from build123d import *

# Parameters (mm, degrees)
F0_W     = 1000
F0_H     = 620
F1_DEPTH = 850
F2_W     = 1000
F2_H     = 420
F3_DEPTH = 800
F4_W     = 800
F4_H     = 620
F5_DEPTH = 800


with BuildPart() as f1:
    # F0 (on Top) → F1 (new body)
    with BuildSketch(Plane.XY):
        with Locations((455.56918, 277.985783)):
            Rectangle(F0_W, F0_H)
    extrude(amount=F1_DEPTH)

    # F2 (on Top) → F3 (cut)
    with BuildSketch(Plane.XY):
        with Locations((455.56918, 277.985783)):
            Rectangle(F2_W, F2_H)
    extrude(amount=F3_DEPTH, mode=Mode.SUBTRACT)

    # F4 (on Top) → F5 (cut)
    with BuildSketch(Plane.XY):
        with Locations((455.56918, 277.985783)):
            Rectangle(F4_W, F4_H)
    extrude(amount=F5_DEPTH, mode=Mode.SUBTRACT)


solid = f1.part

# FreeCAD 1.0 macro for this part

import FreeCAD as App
import Part
import Sketcher
Q = App.Units.Quantity


def add_polygon(sketch, points):
    """Adds a closed chain of lines whose ends are joined by coincident constraints."""
    first, n = sketch.GeometryCount, len(points)
    for a, b in zip(points, points[1:] + points[:1]):
        sketch.addGeometry(Part.LineSegment(App.Vector(*a, 0), App.Vector(*b, 0)), False)
    for i in range(n):
        sketch.addConstraint(Sketcher.Constraint("Coincident", first + i, 2, first + (i + 1) % n, 1))

doc = App.newDocument("Part")
params = doc.addObject("Spreadsheet::Sheet", "Params")
for row, (alias, value) in enumerate([
    ("sketch1_width", "1000 mm"),
    ("sketch1_height", "620 mm"),
    ("pad1_length", "850 mm"),
    ("sketch2_width", "1000 mm"),
    ("sketch2_height", "420 mm"),
    ("pocket1_length", "800 mm"),
    ("sketch3_width", "800 mm"),
    ("sketch3_height", "620 mm"),
    ("pocket2_length", "800 mm"),
], start=1):
    params.set(f"A{row}", alias)
    params.set(f"B{row}", "=" + value)
    params.setAlias(f"B{row}", alias)

body = doc.addObject("PartDesign::Body", "Body")

# Sketch on XY plane
sketch1 = body.newObject("Sketcher::SketchObject", "Sketch")
sketch1.AttachmentSupport = (doc.getObject("XY_Plane"), [""])
sketch1.MapMode = "FlatFace"
add_polygon(sketch1, [(-44, 588), (-44, -32), (956, -32), (956, 588)])  # lines 0-3
sketch1.addConstraint([
    Sketcher.Constraint("Vertical", 0),
    Sketcher.Constraint("Horizontal", 1),
    Sketcher.Constraint("Vertical", 2),
    Sketcher.Constraint("Horizontal", 3),
    Sketcher.Constraint("DistanceX", 1, 1, 1, 2, Q("1000 mm")),
    Sketcher.Constraint("DistanceY", 0, 2, 0, 1, Q("620 mm")),
    Sketcher.Constraint("DistanceX", 0, 2, -1, 1, Q("44.43082 mm")),
    Sketcher.Constraint("DistanceY", 0, 2, -1, 1, Q("32.014217 mm")),
])
sketch1.setExpression("Constraints[8]", "Params.sketch1_width")
sketch1.setExpression("Constraints[9]", "Params.sketch1_height")
pad1 = body.newObject("PartDesign::Pad", "Pad")
pad1.Profile = sketch1
pad1.setExpression("Length", "Params.pad1_length")

# Sketch on XY plane
sketch2 = body.newObject("Sketcher::SketchObject", "Sketch001")
sketch2.AttachmentSupport = (doc.getObject("XY_Plane"), [""])
sketch2.MapMode = "FlatFace"
add_polygon(sketch2, [(-44, 488), (-44, 68), (956, 68), (956, 488)])  # lines 0-3
sketch2.addConstraint([
    Sketcher.Constraint("Vertical", 0),
    Sketcher.Constraint("Horizontal", 1),
    Sketcher.Constraint("Vertical", 2),
    Sketcher.Constraint("Horizontal", 3),
    Sketcher.Constraint("DistanceX", 1, 1, 1, 2, Q("1000 mm")),
    Sketcher.Constraint("DistanceY", 0, 2, 0, 1, Q("420 mm")),
    Sketcher.Constraint("DistanceX", 0, 2, -1, 1, Q("44.43082 mm")),
    Sketcher.Constraint("DistanceY", -1, 1, 0, 2, Q("67.985783 mm")),
])
sketch2.setExpression("Constraints[8]", "Params.sketch2_width")
sketch2.setExpression("Constraints[9]", "Params.sketch2_height")
pocket1 = body.newObject("PartDesign::Pocket", "Pocket")
pocket1.Profile = sketch2
pocket1.setExpression("Length", "Params.pocket1_length")
pocket1.Reversed = True

# Sketch on XY plane
sketch3 = body.newObject("Sketcher::SketchObject", "Sketch002")
sketch3.AttachmentSupport = (doc.getObject("XY_Plane"), [""])
sketch3.MapMode = "FlatFace"
add_polygon(sketch3, [(56, 588), (56, -32), (856, -32), (856, 588)])  # lines 0-3
sketch3.addConstraint([
    Sketcher.Constraint("Vertical", 0),
    Sketcher.Constraint("Horizontal", 1),
    Sketcher.Constraint("Vertical", 2),
    Sketcher.Constraint("Horizontal", 3),
    Sketcher.Constraint("DistanceX", 1, 1, 1, 2, Q("800 mm")),
    Sketcher.Constraint("DistanceY", 0, 2, 0, 1, Q("620 mm")),
    Sketcher.Constraint("DistanceX", -1, 1, 0, 2, Q("55.56918 mm")),
    Sketcher.Constraint("DistanceY", 0, 2, -1, 1, Q("32.014217 mm")),
])
sketch3.setExpression("Constraints[8]", "Params.sketch3_width")
sketch3.setExpression("Constraints[9]", "Params.sketch3_height")
pocket2 = body.newObject("PartDesign::Pocket", "Pocket001")
pocket2.Profile = sketch3
pocket2.setExpression("Length", "Params.pocket2_length")
pocket2.Reversed = True

doc.recompute()
